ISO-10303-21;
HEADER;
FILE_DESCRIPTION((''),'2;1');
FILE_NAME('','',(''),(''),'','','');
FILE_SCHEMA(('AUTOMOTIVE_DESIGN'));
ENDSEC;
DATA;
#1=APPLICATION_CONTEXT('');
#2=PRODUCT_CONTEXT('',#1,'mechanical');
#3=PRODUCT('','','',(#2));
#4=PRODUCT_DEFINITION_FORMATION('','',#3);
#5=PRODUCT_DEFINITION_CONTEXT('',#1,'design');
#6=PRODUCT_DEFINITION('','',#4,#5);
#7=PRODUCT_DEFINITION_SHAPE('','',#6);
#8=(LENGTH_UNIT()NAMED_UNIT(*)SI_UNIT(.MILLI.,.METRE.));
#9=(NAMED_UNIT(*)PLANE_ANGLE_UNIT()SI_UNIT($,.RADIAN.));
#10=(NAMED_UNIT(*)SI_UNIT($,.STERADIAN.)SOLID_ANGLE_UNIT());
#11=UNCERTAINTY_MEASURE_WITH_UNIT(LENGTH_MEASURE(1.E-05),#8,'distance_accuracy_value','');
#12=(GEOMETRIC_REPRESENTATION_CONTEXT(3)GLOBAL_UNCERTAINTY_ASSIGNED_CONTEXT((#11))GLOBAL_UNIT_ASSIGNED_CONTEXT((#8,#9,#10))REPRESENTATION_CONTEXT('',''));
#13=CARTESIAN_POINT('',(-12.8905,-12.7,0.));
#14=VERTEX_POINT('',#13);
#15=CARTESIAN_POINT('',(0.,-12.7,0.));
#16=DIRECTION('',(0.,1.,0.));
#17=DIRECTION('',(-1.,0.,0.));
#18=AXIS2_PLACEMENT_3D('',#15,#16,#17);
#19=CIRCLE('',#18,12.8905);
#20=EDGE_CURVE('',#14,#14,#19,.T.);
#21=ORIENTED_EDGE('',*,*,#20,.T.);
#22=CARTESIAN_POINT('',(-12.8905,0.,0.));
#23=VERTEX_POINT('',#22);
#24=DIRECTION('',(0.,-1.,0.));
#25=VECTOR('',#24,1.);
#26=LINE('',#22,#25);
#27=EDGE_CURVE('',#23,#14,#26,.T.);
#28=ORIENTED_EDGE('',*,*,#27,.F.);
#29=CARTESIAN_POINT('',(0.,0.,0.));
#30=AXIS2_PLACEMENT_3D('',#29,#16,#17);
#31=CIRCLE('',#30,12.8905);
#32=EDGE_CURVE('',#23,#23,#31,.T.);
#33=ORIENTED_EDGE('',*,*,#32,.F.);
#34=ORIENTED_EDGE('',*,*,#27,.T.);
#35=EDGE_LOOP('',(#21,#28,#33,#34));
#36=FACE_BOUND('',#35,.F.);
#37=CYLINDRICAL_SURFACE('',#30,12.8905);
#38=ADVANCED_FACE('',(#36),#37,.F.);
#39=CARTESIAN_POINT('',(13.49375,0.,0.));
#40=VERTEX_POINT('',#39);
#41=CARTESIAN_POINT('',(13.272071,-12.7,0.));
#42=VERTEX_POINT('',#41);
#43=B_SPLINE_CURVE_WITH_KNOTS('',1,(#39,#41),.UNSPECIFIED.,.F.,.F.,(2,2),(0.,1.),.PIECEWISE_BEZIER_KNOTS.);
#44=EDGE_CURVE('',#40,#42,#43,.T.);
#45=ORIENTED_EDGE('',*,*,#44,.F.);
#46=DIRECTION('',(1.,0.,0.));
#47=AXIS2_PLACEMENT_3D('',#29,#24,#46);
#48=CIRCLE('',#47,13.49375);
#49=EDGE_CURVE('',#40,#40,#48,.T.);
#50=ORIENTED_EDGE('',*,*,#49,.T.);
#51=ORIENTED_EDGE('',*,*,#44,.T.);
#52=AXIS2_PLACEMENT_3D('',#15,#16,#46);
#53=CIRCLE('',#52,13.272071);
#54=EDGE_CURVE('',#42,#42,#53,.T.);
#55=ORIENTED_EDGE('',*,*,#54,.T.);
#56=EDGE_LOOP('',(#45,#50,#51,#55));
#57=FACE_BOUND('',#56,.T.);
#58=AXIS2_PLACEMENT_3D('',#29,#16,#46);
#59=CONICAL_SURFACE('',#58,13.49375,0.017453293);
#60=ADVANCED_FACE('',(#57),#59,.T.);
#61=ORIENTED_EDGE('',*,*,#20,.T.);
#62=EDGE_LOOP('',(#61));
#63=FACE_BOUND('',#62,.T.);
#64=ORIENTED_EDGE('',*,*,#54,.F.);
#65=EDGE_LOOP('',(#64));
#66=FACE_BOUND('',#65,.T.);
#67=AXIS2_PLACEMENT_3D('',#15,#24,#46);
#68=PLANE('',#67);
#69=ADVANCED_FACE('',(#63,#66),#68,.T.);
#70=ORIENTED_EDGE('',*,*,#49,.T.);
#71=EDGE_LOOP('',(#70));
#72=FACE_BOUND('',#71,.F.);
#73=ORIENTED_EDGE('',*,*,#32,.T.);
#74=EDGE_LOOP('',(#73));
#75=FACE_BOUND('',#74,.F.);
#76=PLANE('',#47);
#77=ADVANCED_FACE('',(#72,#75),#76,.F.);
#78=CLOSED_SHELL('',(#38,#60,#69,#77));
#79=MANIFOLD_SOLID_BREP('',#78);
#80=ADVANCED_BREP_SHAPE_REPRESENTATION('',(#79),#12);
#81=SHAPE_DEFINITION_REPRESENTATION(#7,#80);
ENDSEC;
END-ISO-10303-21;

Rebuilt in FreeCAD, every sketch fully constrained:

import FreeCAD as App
import Part
import Sketcher

V = App.Vector
Q = App.Units.Quantity

doc = App.newDocument("Part")
params = doc.addObject("Spreadsheet::Sheet", "Params")
for row, (alias, value) in enumerate([
    ("sketch1_diameter", "1.0625 in"),
    ("pad1_length", "0.5 in"),
    ("pad1_taper", "-1 deg"),
    ("sketch2_diameter", "1.015 in"),
    ("pocket1_length", "1 in"),
], start=1):
    params.set(f"A{row}", alias)
    params.set(f"B{row}", "=" + value)
    params.setAlias(f"B{row}", alias)

body = doc.addObject("PartDesign::Body", "Body")

sketch1 = body.newObject("Sketcher::SketchObject", "Sketch")
sketch1.AttachmentSupport = (doc.getObject("XZ_Plane"), [""])
sketch1.MapMode = "FlatFace"
sketch1.addGeometry(Part.Circle(V(0, 0, 0), V(0, 0, 1), 13.49375), False)
sketch1.addConstraint([
    Sketcher.Constraint("Coincident", 0, 3, -1, 1),
    Sketcher.Constraint("Diameter", 0, Q("1.0625 in")),
])
sketch1.setExpression("Constraints[1]", "Params.sketch1_diameter")
pad1 = body.newObject("PartDesign::Pad", "Pad")
pad1.Profile = sketch1
pad1.setExpression("Length", "Params.pad1_length")
pad1.setExpression("TaperAngle", "Params.pad1_taper")

sketch2 = body.newObject("Sketcher::SketchObject", "Sketch001")
sketch2.AttachmentSupport = (doc.getObject("XZ_Plane"), [""])
sketch2.MapMode = "FlatFace"
sketch2.addGeometry(Part.Circle(V(0, 0, 0), V(0, 0, 1), 12.8905), False)
sketch2.addConstraint([
    Sketcher.Constraint("Coincident", 0, 3, -1, 1),
    Sketcher.Constraint("Diameter", 0, Q("1.015 in")),
])
sketch2.setExpression("Constraints[1]", "Params.sketch2_diameter")
pocket1 = body.newObject("PartDesign::Pocket", "Pocket")
pocket1.Profile = sketch2
pocket1.setExpression("Length", "Params.pocket1_length")
pocket1.Reversed = True

doc.recompute()
